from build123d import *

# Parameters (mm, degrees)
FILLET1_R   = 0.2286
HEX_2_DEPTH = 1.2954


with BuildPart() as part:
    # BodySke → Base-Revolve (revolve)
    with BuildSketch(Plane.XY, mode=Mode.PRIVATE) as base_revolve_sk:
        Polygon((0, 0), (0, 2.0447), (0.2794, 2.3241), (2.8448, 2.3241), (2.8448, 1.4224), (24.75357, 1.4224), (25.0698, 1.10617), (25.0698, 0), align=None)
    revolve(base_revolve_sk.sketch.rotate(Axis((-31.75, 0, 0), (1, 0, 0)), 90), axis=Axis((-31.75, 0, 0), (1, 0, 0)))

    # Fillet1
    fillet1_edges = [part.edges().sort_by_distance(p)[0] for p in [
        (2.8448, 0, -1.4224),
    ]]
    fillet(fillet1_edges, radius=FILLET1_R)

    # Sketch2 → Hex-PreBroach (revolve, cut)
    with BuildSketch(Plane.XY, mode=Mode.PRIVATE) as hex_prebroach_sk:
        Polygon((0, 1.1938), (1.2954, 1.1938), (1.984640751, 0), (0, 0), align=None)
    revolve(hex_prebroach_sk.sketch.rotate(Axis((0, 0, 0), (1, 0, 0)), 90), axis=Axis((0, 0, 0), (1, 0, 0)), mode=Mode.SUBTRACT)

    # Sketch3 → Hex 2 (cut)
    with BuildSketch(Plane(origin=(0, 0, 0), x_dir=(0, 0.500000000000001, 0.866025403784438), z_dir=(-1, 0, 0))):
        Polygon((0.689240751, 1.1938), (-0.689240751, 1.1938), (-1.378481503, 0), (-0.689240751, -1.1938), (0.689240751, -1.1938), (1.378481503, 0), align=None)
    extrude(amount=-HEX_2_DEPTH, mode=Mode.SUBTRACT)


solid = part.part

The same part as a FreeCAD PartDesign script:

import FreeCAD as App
import Part
import Sketcher

V = App.Vector
Q = App.Units.Quantity


def edges_at(feature, points):
    """Names of the edges that pass closest to the given points."""
    edges = feature.Shape.Edges
    near = lambda p: min(range(len(edges)), key=lambda i: edges[i].distToShape(Part.Vertex(*p))[0])
    return sorted({f"Edge{near(p) + 1}" for p in points})

doc = App.newDocument("Part")
params = doc.addObject("Spreadsheet::Sheet", "Params")
for row, (alias, value) in enumerate([
    ("sketch1_width", "0.987 in"),
    ("sketch1_width2", "0.101 in"),
    ("revolution_angle", "360 deg"),
    ("fillet_radius", "0.009 in"),
    ("sketch2_width", "0.051 in"),
    ("sketch2_height", "0.047 in"),
    ("groove_angle", "360 deg"),
    ("pocket1_length", "0.051 in"),
], start=1):
    params.set(f"A{row}", alias)
    params.set(f"B{row}", "=" + value)
    params.setAlias(f"B{row}", alias)

body = doc.addObject("PartDesign::Body", "Body")

# Sketch on XY plane
sketch1 = doc.addObject("Sketcher::SketchObject", "Sketch")
body.addObject(sketch1)
sketch1.AttachmentSupport = (doc.XY_Plane, [""])
sketch1.MapMode = "FlatFace"
sketch1.addGeometry([
    Part.LineSegment(V(0, 2.04, 0), V(0, 0, 0)),  # 0
    Part.LineSegment(V(0, 0, 0), V(25.07, 0, 0)),  # 1
    Part.LineSegment(V(25.07, 0, 0), V(25.07, 1.11, 0)),  # 2
    Part.LineSegment(V(25.07, 1.11, 0), V(24.75, 1.42, 0)),  # 3
    Part.LineSegment(V(24.75, 1.42, 0), V(2.84, 1.42, 0)),  # 4
    Part.LineSegment(V(2.84, 1.42, 0), V(2.84, 2.32, 0)),  # 5
    Part.LineSegment(V(2.84, 2.32, 0), V(0.28, 2.32, 0)),  # 6
    Part.LineSegment(V(0.28, 2.32, 0), V(0, 2.04, 0)),  # 7
], False)
sketch1.addConstraint([
    Sketcher.Constraint("Coincident", 0, 2, 1, 1),
    Sketcher.Constraint("Coincident", 1, 2, 2, 1),
    Sketcher.Constraint("Coincident", 2, 2, 3, 1),
    Sketcher.Constraint("Coincident", 3, 2, 4, 1),
    Sketcher.Constraint("Coincident", 4, 2, 5, 1),
    Sketcher.Constraint("Coincident", 5, 2, 6, 1),
    Sketcher.Constraint("Coincident", 6, 2, 7, 1),
    Sketcher.Constraint("Coincident", 7, 2, 0, 1),
    Sketcher.Constraint("Vertical", 0),
    Sketcher.Constraint("Horizontal", 1),
    Sketcher.Constraint("Vertical", 2),
    Sketcher.Constraint("Horizontal", 4),
    Sketcher.Constraint("Vertical", 5),
    Sketcher.Constraint("Horizontal", 6),
    Sketcher.Constraint("Coincident", 0, 2, -1, 1),
    Sketcher.Constraint("Perpendicular", 3, 7),
    Sketcher.Constraint("Angle", 3, Q("135 deg")),
    Sketcher.Constraint("DistanceX", 1, 1, 1, 2, Q("0.987 in")),
    Sketcher.Constraint("DistanceX", 6, 2, 6, 1, Q("0.101 in")),
    Sketcher.Constraint("DistanceY", 0, 2, 0, 1, Q("0.0805 in")),
    Sketcher.Constraint("DistanceY", 5, 1, 5, 2, Q("0.0355 in")),
    Sketcher.Constraint("DistanceY", -1, 1, 3, 2, Q("0.056 in")),
    Sketcher.Constraint("DistanceX", 4, 2, 4, 1, 21.90877),
])
sketch1.setExpression("Constraints[17]", "Params.sketch1_width")
sketch1.setExpression("Constraints[18]", "Params.sketch1_width2")
revolution = doc.addObject("PartDesign::Revolution", "Revolution")
body.addObject(revolution)
revolution.Profile = sketch1
revolution.ReferenceAxis = (sketch1, ["H_Axis"])
revolution.setExpression("Angle", "Params.revolution_angle")
doc.recompute()

fillet = doc.addObject("PartDesign::Fillet", "Fillet")
body.addObject(fillet)
fillet.Base = (revolution, edges_at(revolution, [(2.845, 0, -1.422)]))
fillet.setExpression("Radius", "Params.fillet_radius")

# Sketch on XY plane
sketch2 = doc.addObject("Sketcher::SketchObject", "Sketch001")
body.addObject(sketch2)
sketch2.AttachmentSupport = (doc.XY_Plane, [""])
sketch2.MapMode = "FlatFace"
sketch2.addGeometry([
    Part.LineSegment(V(1.3, 1.2, 0), V(0, 1.2, 0)),
    Part.LineSegment(V(0, 1.2, 0), V(0, 0, 0)),
    Part.LineSegment(V(0, 0, 0), V(2, 0, 0)),
    Part.LineSegment(V(2, 0, 0), V(1.3, 1.2, 0)),
], False)
sketch2.addConstraint([
    Sketcher.Constraint("Coincident", 0, 2, 1, 1),
    Sketcher.Constraint("Coincident", 1, 2, 2, 1),
    Sketcher.Constraint("Coincident", 2, 2, 3, 1),
    Sketcher.Constraint("Coincident", 3, 2, 0, 1),
    Sketcher.Constraint("Horizontal", 0),
    Sketcher.Constraint("Vertical", 1),
    Sketcher.Constraint("Horizontal", 2),
    Sketcher.Constraint("Coincident", 1, 2, -1, 1),
    Sketcher.Constraint("Angle", 3, Q("120 deg")),
    Sketcher.Constraint("DistanceX", 0, 2, 0, 1, Q("0.051 in")),
    Sketcher.Constraint("DistanceY", 1, 2, 1, 1, Q("0.047 in")),
])
sketch2.setExpression("Constraints[9]", "Params.sketch2_width")
sketch2.setExpression("Constraints[10]", "Params.sketch2_height")
groove = doc.addObject("PartDesign::Groove", "Groove")
body.addObject(groove)
groove.Profile = sketch2
groove.ReferenceAxis = (sketch2, ["H_Axis"])
groove.setExpression("Angle", "Params.groove_angle")

# Sketch on YZ plane
sketch3 = doc.addObject("Sketcher::SketchObject", "Sketch002")
body.addObject(sketch3)
sketch3.AttachmentSupport = (doc.YZ_Plane, [""])
sketch3.MapMode = "FlatFace"
sketch3.addGeometry([
    Part.LineSegment(V(1.4, 0, 0), V(0.7, -1.2, 0)),  # 0
    Part.LineSegment(V(0.7, -1.2, 0), V(-0.7, -1.2, 0)),  # 1
    Part.LineSegment(V(-0.7, -1.2, 0), V(-1.4, 0, 0)),  # 2
    Part.LineSegment(V(-1.4, 0, 0), V(-0.7, 1.2, 0)),  # 3
    Part.LineSegment(V(-0.7, 1.2, 0), V(0.7, 1.2, 0)),  # 4
    Part.LineSegment(V(0.7, 1.2, 0), V(1.4, 0, 0)),  # 5
], False)
sketch3.addConstraint([
    Sketcher.Constraint("Coincident", 0, 2, 1, 1),
    Sketcher.Constraint("Coincident", 1, 2, 2, 1),
    Sketcher.Constraint("Coincident", 2, 2, 3, 1),
    Sketcher.Constraint("Coincident", 3, 2, 4, 1),
    Sketcher.Constraint("Coincident", 4, 2, 5, 1),
    Sketcher.Constraint("Coincident", 5, 2, 0, 1),
    Sketcher.Constraint("Horizontal", 1),
    Sketcher.Constraint("Horizontal", 4),
    Sketcher.Constraint("Symmetric", 0, 2, 3, 2, -1, 1),
    Sketcher.Constraint("Symmetric", 2, 2, 5, 2, -1, 1),
    Sketcher.Constraint("PointOnObject", 2, 2, -1),
    Sketcher.Constraint("Parallel", 2, 5),
    Sketcher.Constraint("Vertical", 1, 2, 3, 2),
    Sketcher.Constraint("Angle", 0, Q("-120 deg")),
    Sketcher.Constraint("DistanceY", 0, 2, -1, 1, Q("0.047 in")),
    Sketcher.Constraint("DistanceX", 1, 2, 1, 1, 1.378482),
])
pocket1 = doc.addObject("PartDesign::Pocket", "Pocket")
body.addObject(pocket1)
pocket1.Profile = sketch3
pocket1.setExpression("Length", "Params.pocket1_length")
pocket1.Reversed = True

doc.recompute()
